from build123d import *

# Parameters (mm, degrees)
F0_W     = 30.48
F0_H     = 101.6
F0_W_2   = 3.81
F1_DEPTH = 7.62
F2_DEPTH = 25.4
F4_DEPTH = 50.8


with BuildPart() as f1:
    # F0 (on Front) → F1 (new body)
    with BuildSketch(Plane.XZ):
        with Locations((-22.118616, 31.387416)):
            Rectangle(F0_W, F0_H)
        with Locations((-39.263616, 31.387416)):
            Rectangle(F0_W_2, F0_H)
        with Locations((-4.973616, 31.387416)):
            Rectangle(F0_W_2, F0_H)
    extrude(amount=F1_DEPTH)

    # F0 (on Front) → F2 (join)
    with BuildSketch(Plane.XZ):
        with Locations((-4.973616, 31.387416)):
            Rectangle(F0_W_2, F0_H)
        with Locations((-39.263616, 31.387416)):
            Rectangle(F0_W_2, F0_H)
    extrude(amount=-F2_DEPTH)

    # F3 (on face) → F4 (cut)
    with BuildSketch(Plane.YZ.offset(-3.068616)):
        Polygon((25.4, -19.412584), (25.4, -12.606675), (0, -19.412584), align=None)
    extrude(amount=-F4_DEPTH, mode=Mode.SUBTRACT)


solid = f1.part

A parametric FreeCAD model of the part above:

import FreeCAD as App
import Part
import Sketcher
Q = App.Units.Quantity


def add_polygon(sketch, points):
    """Adds a closed chain of lines whose ends are joined by coincident constraints."""
    first, n = sketch.GeometryCount, len(points)
    for a, b in zip(points, points[1:] + points[:1]):
        sketch.addGeometry(Part.LineSegment(App.Vector(*a, 0), App.Vector(*b, 0)), False)
    for i in range(n):
        sketch.addConstraint(Sketcher.Constraint("Coincident", first + i, 2, first + (i + 1) % n, 1))

doc = App.newDocument("Part")
body = doc.addObject("PartDesign::Body", "Body")

# Sketch on XZ plane
sketch1 = doc.addObject("Sketcher::SketchObject", "Sketch")
body.addObject(sketch1)
sketch1.AttachmentSupport = (doc.XZ_Plane, [""])
sketch1.MapMode = "FlatFace"
add_polygon(sketch1, [(-41, 82), (-41, -19), (-3, -19), (-3, 82)])  # lines 0-3
sketch1.addConstraint(Sketcher.Constraint("Vertical", 0))
sketch1.addConstraint(Sketcher.Constraint("Horizontal", 1))
sketch1.addConstraint(Sketcher.Constraint("Vertical", 2))
sketch1.addConstraint(Sketcher.Constraint("Horizontal", 3))
sketch1.addConstraint(Sketcher.Constraint("DistanceY", 0, 2, 0, 1, Q("4 in")))
sketch1.addConstraint(Sketcher.Constraint("DistanceX", 1, 1, 1, 2, Q("1.5 in")))
sketch1.addConstraint(Sketcher.Constraint("DistanceX", 0, 2, -1, 1, Q("41.168616 mm")))
sketch1.addConstraint(Sketcher.Constraint("DistanceY", 0, 2, -1, 1, Q("19.412584 mm")))
pad1 = doc.addObject("PartDesign::Pad", "Pad")
body.addObject(pad1)
pad1.Profile = sketch1
pad1.Length = Q("0.3 in")

# Sketch on XZ plane
sketch2 = doc.addObject("Sketcher::SketchObject", "Sketch001")
body.addObject(sketch2)
sketch2.AttachmentSupport = (doc.XZ_Plane, [""])
sketch2.MapMode = "FlatFace"
add_polygon(sketch2, [(-6.9, 82.2), (-6.9, -19.4), (-3.1, -19.4), (-3.1, 82.2)])  # lines 0-3
add_polygon(sketch2, [(-41.2, 82.2), (-41.2, -19.4), (-37.4, -19.4), (-37.4, 82.2)])  # lines 4-7
sketch2.addConstraint(Sketcher.Constraint("Vertical", 0))
sketch2.addConstraint(Sketcher.Constraint("Horizontal", 1))
sketch2.addConstraint(Sketcher.Constraint("Vertical", 2))
sketch2.addConstraint(Sketcher.Constraint("Horizontal", 3))
sketch2.addConstraint(Sketcher.Constraint("Vertical", 4))
sketch2.addConstraint(Sketcher.Constraint("Horizontal", 5))
sketch2.addConstraint(Sketcher.Constraint("Vertical", 6))
sketch2.addConstraint(Sketcher.Constraint("Horizontal", 7))
sketch2.addConstraint(Sketcher.Constraint("Horizontal", 1, 2, 4, 2))
sketch2.addConstraint(Sketcher.Constraint("Horizontal", 3, 2, 6, 2))
sketch2.addConstraint(Sketcher.Constraint("Equal", 3, 5))
sketch2.addConstraint(Sketcher.Constraint("DistanceY", 0, 2, 0, 1, Q("4 in")))
sketch2.addConstraint(Sketcher.Constraint("DistanceX", 1, 1, 1, 2, Q("0.15 in")))
sketch2.addConstraint(Sketcher.Constraint("DistanceX", 4, 2, 1, 2, Q("1.5 in")))
sketch2.addConstraint(Sketcher.Constraint("DistanceX", 0, 2, -1, 1, Q("6.878616 mm")))
sketch2.addConstraint(Sketcher.Constraint("DistanceY", 0, 2, -1, 1, Q("19.412584 mm")))
pad2 = doc.addObject("PartDesign::Pad", "Pad001")
body.addObject(pad2)
pad2.Profile = sketch2
pad2.Length = Q("1 in")
pad2.Reversed = True

# Sketch on YZ plane
sketch3 = doc.addObject("Sketcher::SketchObject", "Sketch002")
body.addObject(sketch3)
sketch3.AttachmentSupport = (doc.YZ_Plane, [""])
sketch3.MapMode = "FlatFace"
sketch3.AttachmentOffset = App.Placement(App.Vector(0, 0, -3.068616), App.Rotation())
add_polygon(sketch3, [(25, -19), (25, -13), (0, -19)])  # lines 0-2
sketch3.addConstraint(Sketcher.Constraint("Vertical", 0))
sketch3.addConstraint(Sketcher.Constraint("Horizontal", 2))
sketch3.addConstraint(Sketcher.Constraint("PointOnObject", 1, 2, -2))
sketch3.addConstraint(Sketcher.Constraint("DistanceX", 2, 1, 2, 2, Q("1 in")))
sketch3.addConstraint(Sketcher.Constraint("Angle", 1, Q("-165.000001 deg")))
sketch3.addConstraint(Sketcher.Constraint("DistanceY", 0, 2, -1, 1, Q("12.606675 mm")))
pocket1 = doc.addObject("PartDesign::Pocket", "Pocket")
body.addObject(pocket1)
pocket1.Profile = sketch3
pocket1.Length = Q("2 in")

doc.recompute()
